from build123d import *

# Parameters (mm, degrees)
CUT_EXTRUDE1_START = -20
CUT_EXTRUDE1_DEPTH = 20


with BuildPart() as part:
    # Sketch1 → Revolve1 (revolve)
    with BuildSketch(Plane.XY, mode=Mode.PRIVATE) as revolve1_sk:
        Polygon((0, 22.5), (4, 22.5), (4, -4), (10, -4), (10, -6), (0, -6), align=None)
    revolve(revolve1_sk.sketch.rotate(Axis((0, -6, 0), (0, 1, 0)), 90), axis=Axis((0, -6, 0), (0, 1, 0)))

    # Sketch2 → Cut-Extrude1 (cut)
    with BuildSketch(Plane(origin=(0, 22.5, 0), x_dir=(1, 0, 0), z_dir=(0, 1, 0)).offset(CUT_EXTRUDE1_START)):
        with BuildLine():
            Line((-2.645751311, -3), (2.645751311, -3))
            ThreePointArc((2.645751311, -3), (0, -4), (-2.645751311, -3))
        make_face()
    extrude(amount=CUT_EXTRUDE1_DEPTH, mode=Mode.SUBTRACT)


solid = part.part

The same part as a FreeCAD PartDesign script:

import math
import FreeCAD as App
import Part
import Sketcher

doc = App.newDocument("Part")
body = doc.addObject("PartDesign::Body", "Body")

# Sketch on XY plane
sketch1 = body.newObject("Sketcher::SketchObject", "Sketch")
sketch1.AttachmentSupport = (doc.getObject("XY_Plane"), [""])
sketch1.MapMode = "FlatFace"
sketch1.addGeometry([
    Part.LineSegment(App.Vector(4, 22.5, 0), App.Vector(0, 22.5, 0)),  # 0
    Part.LineSegment(App.Vector(0, 22.5, 0), App.Vector(0, -6, 0)),  # 1
    Part.LineSegment(App.Vector(0, -6, 0), App.Vector(10, -6, 0)),  # 2
    Part.LineSegment(App.Vector(10, -6, 0), App.Vector(10, -4, 0)),  # 3
    Part.LineSegment(App.Vector(10, -4, 0), App.Vector(4, -4, 0)),  # 4
    Part.LineSegment(App.Vector(4, -4, 0), App.Vector(4, 22.5, 0)),  # 5
], False)
sketch1.addConstraint([
    Sketcher.Constraint("Coincident", 0, 2, 1, 1),
    Sketcher.Constraint("Coincident", 1, 2, 2, 1),
    Sketcher.Constraint("Coincident", 2, 2, 3, 1),
    Sketcher.Constraint("Coincident", 3, 2, 4, 1),
    Sketcher.Constraint("Coincident", 4, 2, 5, 1),
    Sketcher.Constraint("Coincident", 5, 2, 0, 1),
    Sketcher.Constraint("Horizontal", 0),
    Sketcher.Constraint("Vertical", 1),
    Sketcher.Constraint("Horizontal", 2),
    Sketcher.Constraint("Vertical", 3),
    Sketcher.Constraint("Horizontal", 4),
    Sketcher.Constraint("Vertical", 5),
    Sketcher.Constraint("PointOnObject", 0, 2, -2),
    Sketcher.Constraint("DistanceX", 0, 2, 0, 1, 4.0),
    Sketcher.Constraint("DistanceX", 2, 1, 2, 2, 10.0),
    Sketcher.Constraint("DistanceY", 3, 1, 3, 2, 2.0),
    Sketcher.Constraint("DistanceY", 1, 2, 1, 1, 28.5),
    Sketcher.Constraint("DistanceY", 1, 2, -1, 1, 6.0),
])
revolution = body.newObject("PartDesign::Revolution", "Revolution")
revolution.Profile = sketch1
revolution.ReferenceAxis = (sketch1, ["V_Axis"])
revolution.Angle = 360

# Sketch on XZ plane
sketch2 = body.newObject("Sketcher::SketchObject", "Sketch001")
sketch2.AttachmentSupport = (doc.getObject("XZ_Plane"), [""])
sketch2.MapMode = "FlatFace"
sketch2.AttachmentOffset = App.Placement(App.Vector(0, 0, -2.5), App.Rotation())
sketch2.addGeometry([
    Part.LineSegment(App.Vector(2.645751, 3, 0), App.Vector(-2.645751, 3, 0)),
    Part.ArcOfCircle(Part.Circle(App.Vector(0, 0, 0), App.Vector(0, 0, 1), 4), math.radians(48.590378), math.radians(131.409622)),
], False)
sketch2.addConstraint([
    Sketcher.Constraint("Coincident", 0, 1, 1, 1),
    Sketcher.Constraint("Coincident", 1, 2, 0, 2),
    Sketcher.Constraint("Horizontal", 0),
    Sketcher.Constraint("Coincident", 1, 3, -1, 1),
    Sketcher.Constraint("Radius", 1, 4.0),
    Sketcher.Constraint("DistanceY", -1, 1, 0, 1, 3.0),
])
pocket1 = body.newObject("PartDesign::Pocket", "Pocket")
pocket1.Profile = sketch2
pocket1.Length = 20

doc.recompute()
